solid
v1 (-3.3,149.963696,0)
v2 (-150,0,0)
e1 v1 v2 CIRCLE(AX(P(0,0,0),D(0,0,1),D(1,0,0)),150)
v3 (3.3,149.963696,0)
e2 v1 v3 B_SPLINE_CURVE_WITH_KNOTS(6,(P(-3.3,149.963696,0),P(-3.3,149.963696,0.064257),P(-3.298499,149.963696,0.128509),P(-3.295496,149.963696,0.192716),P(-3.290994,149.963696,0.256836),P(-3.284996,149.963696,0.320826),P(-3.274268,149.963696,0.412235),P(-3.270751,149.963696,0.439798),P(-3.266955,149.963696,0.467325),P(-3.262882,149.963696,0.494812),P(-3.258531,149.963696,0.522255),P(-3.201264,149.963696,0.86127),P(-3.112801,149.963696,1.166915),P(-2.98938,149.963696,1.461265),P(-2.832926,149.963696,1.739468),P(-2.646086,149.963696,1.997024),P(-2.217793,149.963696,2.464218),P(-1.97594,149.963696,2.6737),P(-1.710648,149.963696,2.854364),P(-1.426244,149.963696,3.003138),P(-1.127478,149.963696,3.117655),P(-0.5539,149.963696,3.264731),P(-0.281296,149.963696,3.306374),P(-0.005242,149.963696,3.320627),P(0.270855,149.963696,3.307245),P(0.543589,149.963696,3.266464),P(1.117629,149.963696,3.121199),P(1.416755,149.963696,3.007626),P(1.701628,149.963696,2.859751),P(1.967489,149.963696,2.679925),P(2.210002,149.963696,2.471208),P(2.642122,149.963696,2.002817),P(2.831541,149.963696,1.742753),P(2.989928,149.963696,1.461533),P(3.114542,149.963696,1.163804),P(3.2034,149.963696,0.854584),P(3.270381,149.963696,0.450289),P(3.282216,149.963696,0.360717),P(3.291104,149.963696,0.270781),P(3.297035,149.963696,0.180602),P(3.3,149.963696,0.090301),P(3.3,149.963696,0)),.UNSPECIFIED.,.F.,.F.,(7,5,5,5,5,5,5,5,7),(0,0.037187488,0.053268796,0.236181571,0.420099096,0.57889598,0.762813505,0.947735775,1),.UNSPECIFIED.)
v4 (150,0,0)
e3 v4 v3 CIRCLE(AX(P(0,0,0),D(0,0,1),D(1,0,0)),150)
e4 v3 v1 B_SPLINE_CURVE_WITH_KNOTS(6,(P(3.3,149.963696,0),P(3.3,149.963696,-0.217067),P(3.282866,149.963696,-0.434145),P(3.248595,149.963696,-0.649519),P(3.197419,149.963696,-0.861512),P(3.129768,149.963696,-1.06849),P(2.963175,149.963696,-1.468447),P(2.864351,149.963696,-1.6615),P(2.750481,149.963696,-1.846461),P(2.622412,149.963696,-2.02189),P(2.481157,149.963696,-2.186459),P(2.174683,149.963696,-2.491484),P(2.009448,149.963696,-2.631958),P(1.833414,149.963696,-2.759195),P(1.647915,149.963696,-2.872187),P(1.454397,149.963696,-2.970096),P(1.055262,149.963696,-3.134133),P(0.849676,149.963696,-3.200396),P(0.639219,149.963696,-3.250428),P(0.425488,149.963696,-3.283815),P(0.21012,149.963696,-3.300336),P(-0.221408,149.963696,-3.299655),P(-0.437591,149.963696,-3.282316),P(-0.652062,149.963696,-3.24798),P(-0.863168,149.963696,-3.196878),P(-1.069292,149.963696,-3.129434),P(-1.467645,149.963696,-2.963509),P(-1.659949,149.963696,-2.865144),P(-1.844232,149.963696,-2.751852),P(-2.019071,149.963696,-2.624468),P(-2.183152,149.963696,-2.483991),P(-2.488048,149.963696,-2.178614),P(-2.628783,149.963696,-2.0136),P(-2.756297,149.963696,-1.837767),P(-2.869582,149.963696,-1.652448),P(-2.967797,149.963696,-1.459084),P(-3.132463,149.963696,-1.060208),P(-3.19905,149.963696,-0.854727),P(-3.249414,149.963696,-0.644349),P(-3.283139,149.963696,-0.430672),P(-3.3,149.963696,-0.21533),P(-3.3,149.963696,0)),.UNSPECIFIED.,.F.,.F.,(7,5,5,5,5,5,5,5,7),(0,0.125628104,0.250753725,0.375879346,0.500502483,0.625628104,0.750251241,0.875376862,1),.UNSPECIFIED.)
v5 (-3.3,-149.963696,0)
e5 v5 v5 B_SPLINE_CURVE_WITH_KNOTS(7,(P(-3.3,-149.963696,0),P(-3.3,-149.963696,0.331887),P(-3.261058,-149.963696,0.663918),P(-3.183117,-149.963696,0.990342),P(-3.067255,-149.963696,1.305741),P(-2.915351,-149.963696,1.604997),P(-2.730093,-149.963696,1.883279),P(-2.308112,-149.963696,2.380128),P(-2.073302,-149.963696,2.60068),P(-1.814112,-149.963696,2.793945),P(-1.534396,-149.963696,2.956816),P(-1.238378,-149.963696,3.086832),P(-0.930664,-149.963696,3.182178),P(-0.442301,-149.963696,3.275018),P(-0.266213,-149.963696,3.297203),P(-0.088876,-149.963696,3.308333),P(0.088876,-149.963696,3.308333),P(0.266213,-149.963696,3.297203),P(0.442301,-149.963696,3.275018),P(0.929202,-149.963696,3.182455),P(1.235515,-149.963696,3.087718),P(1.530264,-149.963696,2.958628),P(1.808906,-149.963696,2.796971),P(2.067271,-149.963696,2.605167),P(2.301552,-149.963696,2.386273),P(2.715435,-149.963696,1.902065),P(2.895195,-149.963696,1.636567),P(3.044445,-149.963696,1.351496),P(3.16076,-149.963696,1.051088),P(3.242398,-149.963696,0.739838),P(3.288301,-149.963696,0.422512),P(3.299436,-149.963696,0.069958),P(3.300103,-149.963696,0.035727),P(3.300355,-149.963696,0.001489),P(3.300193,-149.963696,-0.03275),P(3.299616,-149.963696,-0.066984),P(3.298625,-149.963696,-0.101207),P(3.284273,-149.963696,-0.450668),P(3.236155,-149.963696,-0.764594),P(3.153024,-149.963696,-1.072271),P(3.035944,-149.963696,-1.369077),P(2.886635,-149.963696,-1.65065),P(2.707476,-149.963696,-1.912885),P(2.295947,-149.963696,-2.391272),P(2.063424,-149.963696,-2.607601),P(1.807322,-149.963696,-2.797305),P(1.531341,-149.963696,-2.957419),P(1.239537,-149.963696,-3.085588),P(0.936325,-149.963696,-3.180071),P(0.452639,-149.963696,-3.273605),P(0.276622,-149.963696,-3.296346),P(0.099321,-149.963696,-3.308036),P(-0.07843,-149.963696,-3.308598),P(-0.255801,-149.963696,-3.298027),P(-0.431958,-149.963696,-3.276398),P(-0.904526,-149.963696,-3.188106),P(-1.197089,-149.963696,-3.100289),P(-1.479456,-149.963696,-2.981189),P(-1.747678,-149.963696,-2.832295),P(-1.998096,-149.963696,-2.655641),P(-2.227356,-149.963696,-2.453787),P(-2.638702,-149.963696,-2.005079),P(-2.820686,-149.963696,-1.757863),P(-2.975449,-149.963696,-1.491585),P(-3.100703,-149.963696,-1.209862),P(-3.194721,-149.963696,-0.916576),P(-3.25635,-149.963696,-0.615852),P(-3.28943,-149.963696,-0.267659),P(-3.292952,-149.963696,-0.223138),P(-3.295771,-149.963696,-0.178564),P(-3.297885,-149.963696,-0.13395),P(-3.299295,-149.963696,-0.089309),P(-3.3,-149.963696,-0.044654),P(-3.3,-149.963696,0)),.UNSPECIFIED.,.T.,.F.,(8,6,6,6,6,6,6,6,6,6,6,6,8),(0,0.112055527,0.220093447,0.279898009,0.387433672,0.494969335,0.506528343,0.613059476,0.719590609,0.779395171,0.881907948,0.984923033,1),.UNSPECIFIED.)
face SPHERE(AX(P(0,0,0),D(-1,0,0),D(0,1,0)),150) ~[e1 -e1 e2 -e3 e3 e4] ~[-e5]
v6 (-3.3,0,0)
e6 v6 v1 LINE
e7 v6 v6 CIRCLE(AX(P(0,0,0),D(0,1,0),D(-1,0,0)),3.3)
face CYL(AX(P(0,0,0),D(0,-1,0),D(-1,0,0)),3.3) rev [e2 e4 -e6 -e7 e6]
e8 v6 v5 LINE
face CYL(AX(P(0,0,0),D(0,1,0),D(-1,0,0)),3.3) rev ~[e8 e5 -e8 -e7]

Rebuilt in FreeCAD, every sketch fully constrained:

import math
import FreeCAD as App
import Part
import Sketcher
from FreeCAD import Vector
Q = App.Units.Quantity

doc = App.newDocument("Part")
body = doc.addObject("PartDesign::Body", "Body")

# Sketch on XY plane
sketch1 = body.newObject("Sketcher::SketchObject", "Sketch")
sketch1.AttachmentSupport = (doc.getObject("XY_Plane"), [""])
sketch1.MapMode = "FlatFace"
sketch1.addGeometry([
    Part.ArcOfCircle(Part.Circle(Vector(0, 0, 0), Vector(0, 0, 1), 150), math.radians(0), math.radians(180)),
    Part.LineSegment(Vector(-150, 0, 0), Vector(150, 0, 0)),
], False)
sketch1.addConstraint([
    Sketcher.Constraint("Coincident", 0, 1, 1, 2),
    Sketcher.Constraint("Coincident", 1, 1, 0, 2),
    Sketcher.Constraint("Horizontal", 1),
    Sketcher.Constraint("Coincident", 0, 3, -1, 1),
    Sketcher.Constraint("PointOnObject", 0, 1, -1),
    Sketcher.Constraint("Radius", 0, Q("150 mm")),
])
revolution = body.newObject("PartDesign::Revolution", "Revolution")
revolution.Profile = sketch1
revolution.ReferenceAxis = (sketch1, ["H_Axis"])
revolution.Angle = 360

# Sketch on XZ plane
sketch2 = body.newObject("Sketcher::SketchObject", "Sketch001")
sketch2.AttachmentSupport = (doc.getObject("XZ_Plane"), [""])
sketch2.MapMode = "FlatFace"
sketch2.addGeometry(Part.Circle(Vector(0, 0, 0), Vector(0, 0, 1), 3.3), False)
sketch2.addConstraint([
    Sketcher.Constraint("Coincident", 0, 3, -1, 1),
    Sketcher.Constraint("Diameter", 0, Q("6.6 mm")),
])
pocket1 = body.newObject("PartDesign::Pocket", "Pocket")
pocket1.Profile = sketch2
pocket1.Type = "ThroughAll"
pocket1.Midplane = True

doc.recompute()
